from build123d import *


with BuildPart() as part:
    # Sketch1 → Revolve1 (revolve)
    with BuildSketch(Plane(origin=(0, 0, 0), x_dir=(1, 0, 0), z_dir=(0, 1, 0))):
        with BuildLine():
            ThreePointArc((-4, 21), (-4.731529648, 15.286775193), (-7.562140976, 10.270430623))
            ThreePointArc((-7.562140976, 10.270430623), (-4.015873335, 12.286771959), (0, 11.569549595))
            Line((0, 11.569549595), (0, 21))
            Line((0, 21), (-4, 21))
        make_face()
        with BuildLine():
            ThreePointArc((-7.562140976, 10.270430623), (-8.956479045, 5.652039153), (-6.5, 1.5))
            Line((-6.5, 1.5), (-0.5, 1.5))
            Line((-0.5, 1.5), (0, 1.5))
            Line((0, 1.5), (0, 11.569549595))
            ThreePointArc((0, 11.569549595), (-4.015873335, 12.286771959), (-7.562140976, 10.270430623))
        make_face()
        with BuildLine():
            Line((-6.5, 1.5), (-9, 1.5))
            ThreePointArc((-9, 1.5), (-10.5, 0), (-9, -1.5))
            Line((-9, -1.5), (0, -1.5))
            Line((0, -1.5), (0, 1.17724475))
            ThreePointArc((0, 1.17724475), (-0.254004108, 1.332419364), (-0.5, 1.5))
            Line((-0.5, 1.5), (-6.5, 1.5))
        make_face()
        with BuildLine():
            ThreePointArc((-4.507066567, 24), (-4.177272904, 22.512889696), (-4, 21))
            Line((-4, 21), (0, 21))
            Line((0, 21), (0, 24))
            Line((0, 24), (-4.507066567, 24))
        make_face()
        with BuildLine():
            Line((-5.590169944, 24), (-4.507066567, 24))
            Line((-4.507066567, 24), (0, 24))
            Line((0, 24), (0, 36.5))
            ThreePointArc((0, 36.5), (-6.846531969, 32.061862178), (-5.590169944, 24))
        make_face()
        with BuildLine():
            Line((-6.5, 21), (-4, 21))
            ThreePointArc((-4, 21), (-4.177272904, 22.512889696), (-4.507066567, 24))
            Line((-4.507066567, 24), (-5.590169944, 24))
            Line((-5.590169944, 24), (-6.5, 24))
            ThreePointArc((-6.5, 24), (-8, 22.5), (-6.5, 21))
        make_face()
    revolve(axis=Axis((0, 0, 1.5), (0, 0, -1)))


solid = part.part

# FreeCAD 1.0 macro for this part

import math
import FreeCAD as App
import Part
import Sketcher
Q = App.Units.Quantity

doc = App.newDocument("Part")
body = doc.addObject("PartDesign::Body", "Body")

# Sketch on XZ plane
sketch1 = doc.addObject("Sketcher::SketchObject", "Sketch")
body.addObject(sketch1)
sketch1.AttachmentSupport = (doc.XZ_Plane, [""])
sketch1.MapMode = "FlatFace"
sketch1.addGeometry(Part.ArcOfCircle(Part.Circle(App.Vector(-18.967493, -20.013014, 0), App.Vector(0, 0, 1), 15), math.radians(-3.772734), math.radians(40.504335)), False)
sketch1.addGeometry(Part.ArcOfCircle(Part.Circle(App.Vector(-3, -6.373397, 0), App.Vector(0, 0, 1), 6), math.radians(125.685335), math.radians(220.504335)), False)
sketch1.addGeometry(Part.LineSegment(App.Vector(-6.5, -1.5, 0), App.Vector(-9, -1.5, 0)), False)
sketch1.addGeometry(Part.ArcOfCircle(Part.Circle(App.Vector(-9, 0, 0), App.Vector(0, 0, 1), 1.5), math.radians(90), math.radians(270)), False)
sketch1.addGeometry(Part.LineSegment(App.Vector(-9, 1.5, 0), App.Vector(0, 1.5, 0)), False)
sketch1.addGeometry(Part.LineSegment(App.Vector(0, 1.5, 0), App.Vector(0, -1.177245, 0)), False)
sketch1.addGeometry(Part.ArcOfCircle(Part.Circle(App.Vector(3, -6.373397, 0), App.Vector(0, 0, 1), 6), math.radians(120), math.radians(125.685335)), False)
sketch1.addGeometry(Part.LineSegment(App.Vector(-0.5, -1.5, 0), App.Vector(0, -1.5, 0)), False)
sketch1.addGeometry(Part.LineSegment(App.Vector(0, -1.5, 0), App.Vector(0, -36.5, 0)), False)
sketch1.addGeometry(Part.ArcOfCircle(Part.Circle(App.Vector(0, -29, 0), App.Vector(0, 0, 1), 7.5), math.radians(138.189685), math.radians(270)), False)
sketch1.addGeometry(Part.LineSegment(App.Vector(-5.59017, -24, 0), App.Vector(-6.5, -24, 0)), False)
sketch1.addGeometry(Part.ArcOfCircle(Part.Circle(App.Vector(-6.5, -22.5, 0), App.Vector(0, 0, 1), 1.5), math.radians(90), math.radians(270)), False)
sketch1.addGeometry(Part.LineSegment(App.Vector(-6.5, -21, 0), App.Vector(-4, -21, 0)), False)
sketch1.addConstraint(Sketcher.Constraint("Tangent", 0, 2, 1, 2))
sketch1.addConstraint(Sketcher.Constraint("Coincident", 1, 1, 2, 1))
sketch1.addConstraint(Sketcher.Constraint("Tangent", 2, 2, 3, 2))
sketch1.addConstraint(Sketcher.Constraint("Tangent", 3, 1, 4, 1))
sketch1.addConstraint(Sketcher.Constraint("Coincident", 4, 2, 5, 1))
sketch1.addConstraint(Sketcher.Constraint("Coincident", 5, 2, 6, 1))
sketch1.addConstraint(Sketcher.Constraint("Coincident", 6, 2, 7, 1))
sketch1.addConstraint(Sketcher.Constraint("Coincident", 7, 2, 8, 1))
sketch1.addConstraint(Sketcher.Constraint("Coincident", 8, 2, 9, 2))
sketch1.addConstraint(Sketcher.Constraint("Coincident", 9, 1, 10, 1))
sketch1.addConstraint(Sketcher.Constraint("Tangent", 10, 2, 11, 2))
sketch1.addConstraint(Sketcher.Constraint("Tangent", 11, 1, 12, 1))
sketch1.addConstraint(Sketcher.Constraint("Coincident", 12, 2, 0, 1))
sketch1.addConstraint(Sketcher.Constraint("Horizontal", 2))
sketch1.addConstraint(Sketcher.Constraint("Horizontal", 4))
sketch1.addConstraint(Sketcher.Constraint("Vertical", 5))
sketch1.addConstraint(Sketcher.Constraint("Horizontal", 7))
sketch1.addConstraint(Sketcher.Constraint("Vertical", 8))
sketch1.addConstraint(Sketcher.Constraint("Horizontal", 10))
sketch1.addConstraint(Sketcher.Constraint("Horizontal", 12))
sketch1.addConstraint(Sketcher.Constraint("Equal", 1, 6))
sketch1.addConstraint(Sketcher.Constraint("Equal", 3, 11))
sketch1.addConstraint(Sketcher.Constraint("Symmetric", 4, 2, 7, 2, -1, 1))
sketch1.addConstraint(Sketcher.Constraint("Symmetric", 1, 3, 6, 3, -2))
sketch1.addConstraint(Sketcher.Constraint("PointOnObject", 3, 3, -1))
sketch1.addConstraint(Sketcher.Constraint("PointOnObject", 9, 3, -2))
sketch1.addConstraint(Sketcher.Constraint("PointOnObject", 4, 2, -2))
sketch1.addConstraint(Sketcher.Constraint("Vertical", 11, 3, 1, 1))
sketch1.addConstraint(Sketcher.Constraint("Equal", 2, 12))
sketch1.addConstraint(Sketcher.Constraint("Radius", 0, Q("15 mm")))
sketch1.addConstraint(Sketcher.Constraint("Radius", 1, Q("6 mm")))
sketch1.addConstraint(Sketcher.Constraint("Radius", 3, Q("1.5 mm")))
sketch1.addConstraint(Sketcher.Constraint("Radius", 9, Q("7.5 mm")))
sketch1.addConstraint(Sketcher.Constraint("DistanceX", 4, 1, 4, 2, Q("9 mm")))
sketch1.addConstraint(Sketcher.Constraint("DistanceY", 8, 2, 8, 1, Q("35 mm")))
sketch1.addConstraint(Sketcher.Constraint("DistanceX", 2, 2, 2, 1, Q("2.5 mm")))
sketch1.addConstraint(Sketcher.Constraint("DistanceX", 7, 1, 7, 2, Q("0.5 mm")))
sketch1.addConstraint(Sketcher.Constraint("DistanceY", 9, 1, -1, 1, Q("24 mm")))
revolution = doc.addObject("PartDesign::Revolution", "Revolution")
body.addObject(revolution)
revolution.Profile = sketch1
revolution.ReferenceAxis = (sketch1, ["V_Axis"])
revolution.Angle = 360

doc.recompute()
